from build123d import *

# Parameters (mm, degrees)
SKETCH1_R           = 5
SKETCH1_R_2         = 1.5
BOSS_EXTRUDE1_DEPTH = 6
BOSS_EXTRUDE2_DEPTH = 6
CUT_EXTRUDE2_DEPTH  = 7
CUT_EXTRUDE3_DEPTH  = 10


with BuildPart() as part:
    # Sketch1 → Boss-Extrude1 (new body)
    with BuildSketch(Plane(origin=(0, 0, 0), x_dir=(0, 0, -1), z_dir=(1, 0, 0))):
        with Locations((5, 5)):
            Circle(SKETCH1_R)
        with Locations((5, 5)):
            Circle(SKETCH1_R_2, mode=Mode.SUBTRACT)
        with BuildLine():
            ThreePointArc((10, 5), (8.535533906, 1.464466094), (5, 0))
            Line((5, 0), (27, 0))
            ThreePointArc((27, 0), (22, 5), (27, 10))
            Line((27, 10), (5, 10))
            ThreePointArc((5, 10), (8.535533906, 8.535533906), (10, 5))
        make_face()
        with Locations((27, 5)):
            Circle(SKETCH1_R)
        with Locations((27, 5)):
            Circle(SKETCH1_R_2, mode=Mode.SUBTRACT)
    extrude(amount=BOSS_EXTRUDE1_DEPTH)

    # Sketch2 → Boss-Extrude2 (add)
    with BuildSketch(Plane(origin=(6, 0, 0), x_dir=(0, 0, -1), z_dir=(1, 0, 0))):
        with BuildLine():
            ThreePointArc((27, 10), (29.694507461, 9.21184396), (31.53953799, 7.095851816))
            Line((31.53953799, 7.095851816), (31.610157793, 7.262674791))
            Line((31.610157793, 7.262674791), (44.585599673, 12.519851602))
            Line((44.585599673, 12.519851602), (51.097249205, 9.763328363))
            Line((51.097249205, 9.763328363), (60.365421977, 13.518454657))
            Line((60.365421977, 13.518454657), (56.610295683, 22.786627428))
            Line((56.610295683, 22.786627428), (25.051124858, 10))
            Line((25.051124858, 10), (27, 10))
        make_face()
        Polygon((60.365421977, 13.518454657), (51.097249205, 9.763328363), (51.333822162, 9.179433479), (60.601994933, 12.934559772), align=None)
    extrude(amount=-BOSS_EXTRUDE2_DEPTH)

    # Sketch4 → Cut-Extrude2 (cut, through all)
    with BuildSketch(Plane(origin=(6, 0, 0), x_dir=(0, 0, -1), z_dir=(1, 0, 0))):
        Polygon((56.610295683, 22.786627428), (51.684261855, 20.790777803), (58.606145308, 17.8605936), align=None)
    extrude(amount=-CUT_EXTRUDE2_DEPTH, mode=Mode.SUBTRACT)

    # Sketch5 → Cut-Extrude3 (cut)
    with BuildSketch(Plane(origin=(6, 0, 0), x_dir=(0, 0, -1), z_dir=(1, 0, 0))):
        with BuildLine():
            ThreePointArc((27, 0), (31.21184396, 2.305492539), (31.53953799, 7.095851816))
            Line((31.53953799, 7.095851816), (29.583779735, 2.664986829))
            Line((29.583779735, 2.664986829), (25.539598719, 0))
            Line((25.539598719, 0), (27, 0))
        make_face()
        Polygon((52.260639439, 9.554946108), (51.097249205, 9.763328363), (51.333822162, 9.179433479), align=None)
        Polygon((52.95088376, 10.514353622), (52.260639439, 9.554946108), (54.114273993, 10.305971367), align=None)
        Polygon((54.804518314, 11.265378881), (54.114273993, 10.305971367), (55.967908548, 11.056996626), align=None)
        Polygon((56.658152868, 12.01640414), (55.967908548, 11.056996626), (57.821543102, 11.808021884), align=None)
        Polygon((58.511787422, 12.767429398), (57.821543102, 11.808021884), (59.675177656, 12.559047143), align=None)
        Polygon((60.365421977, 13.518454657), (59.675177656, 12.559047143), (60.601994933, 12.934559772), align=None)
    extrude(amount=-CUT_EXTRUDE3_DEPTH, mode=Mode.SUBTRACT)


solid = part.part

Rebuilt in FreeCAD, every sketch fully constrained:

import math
import FreeCAD as App
import Part
import Sketcher
from FreeCAD import Vector


def add_polygon(sketch, points):
    """Adds a closed chain of lines whose ends are joined by coincident constraints."""
    first, n = sketch.GeometryCount, len(points)
    for a, b in zip(points, points[1:] + points[:1]):
        sketch.addGeometry(Part.LineSegment(App.Vector(*a, 0), App.Vector(*b, 0)), False)
    for i in range(n):
        sketch.addConstraint(Sketcher.Constraint("Coincident", first + i, 2, first + (i + 1) % n, 1))

doc = App.newDocument("Part")
body = doc.addObject("PartDesign::Body", "Body")

# Sketch on YZ plane
sketch1 = body.newObject("Sketcher::SketchObject", "Sketch")
sketch1.AttachmentSupport = (doc.getObject("YZ_Plane"), [""])
sketch1.MapMode = "FlatFace"
sketch1.addGeometry([
    Part.ArcOfCircle(Part.Circle(Vector(5, -5, 0), Vector(0, 0, 1), 5), math.radians(0), math.radians(180)),  # 0
    Part.LineSegment(Vector(0, -5, 0), Vector(0, -27, 0)),  # 1
    Part.ArcOfCircle(Part.Circle(Vector(5, -27, 0), Vector(0, 0, 1), 5), math.radians(180), math.radians(360)),  # 2
    Part.LineSegment(Vector(10, -27, 0), Vector(10, -5, 0)),  # 3
    Part.Circle(Vector(5, -5, 0), Vector(0, 0, 1), 1.5),  # 4
    Part.Circle(Vector(5, -27, 0), Vector(0, 0, 1), 1.5),  # 5
], False)
sketch1.addConstraint([
    Sketcher.Constraint("Tangent", 0, 2, 1, 1),
    Sketcher.Constraint("Tangent", 1, 2, 2, 1),
    Sketcher.Constraint("Tangent", 2, 2, 3, 1),
    Sketcher.Constraint("Tangent", 3, 2, 0, 1),
    Sketcher.Constraint("Vertical", 1),
    Sketcher.Constraint("Vertical", 3),
    Sketcher.Constraint("Coincident", 4, 3, 0, 3),
    Sketcher.Constraint("Coincident", 5, 3, 2, 3),
    Sketcher.Constraint("Equal", 4, 5),
    Sketcher.Constraint("PointOnObject", 0, 2, -2),
    Sketcher.Constraint("Diameter", 4, 3.0),
    Sketcher.Constraint("Radius", 0, 5.0),
    Sketcher.Constraint("DistanceY", 1, 2, 1, 1, 22.0),
    Sketcher.Constraint("DistanceY", 0, 3, -1, 1, 5.0),
])
pad1 = body.newObject("PartDesign::Pad", "Pad")
pad1.Profile = sketch1
pad1.Length = 6

# Sketch on YZ plane
sketch2 = body.newObject("Sketcher::SketchObject", "Sketch001")
sketch2.AttachmentSupport = (doc.getObject("YZ_Plane"), [""])
sketch2.MapMode = "FlatFace"
sketch2.AttachmentOffset = App.Placement(Vector(0, 0, 6), App.Rotation())
sketch2.addGeometry([
    Part.ArcOfCircle(Part.Circle(Vector(5, -27, 0), Vector(0, 0, 1), 5), math.radians(-65), math.radians(0)),  # 0
    Part.LineSegment(Vector(7.1, -31.54, 0), Vector(7.26, -31.61, 0)),  # 1
    Part.LineSegment(Vector(7.26, -31.61, 0), Vector(12.52, -44.59, 0)),  # 2
    Part.LineSegment(Vector(12.52, -44.59, 0), Vector(9.76, -51.1, 0)),  # 3
    Part.LineSegment(Vector(9.76, -51.1, 0), Vector(9.18, -51.33, 0)),  # 4
    Part.LineSegment(Vector(9.18, -51.33, 0), Vector(12.93, -60.6, 0)),  # 5
    Part.LineSegment(Vector(12.93, -60.6, 0), Vector(13.52, -60.37, 0)),  # 6
    Part.LineSegment(Vector(13.52, -60.37, 0), Vector(22.79, -56.61, 0)),  # 7
    Part.LineSegment(Vector(22.79, -56.61, 0), Vector(10, -25.05, 0)),  # 8
    Part.LineSegment(Vector(10, -25.05, 0), Vector(10, -27, 0)),  # 9
], False)
sketch2.addConstraint([
    Sketcher.Constraint("Coincident", 0, 1, 1, 1),
    Sketcher.Constraint("Coincident", 1, 2, 2, 1),
    Sketcher.Constraint("Coincident", 2, 2, 3, 1),
    Sketcher.Constraint("Coincident", 3, 2, 4, 1),
    Sketcher.Constraint("Coincident", 4, 2, 5, 1),
    Sketcher.Constraint("Coincident", 5, 2, 6, 1),
    Sketcher.Constraint("Coincident", 6, 2, 7, 1),
    Sketcher.Constraint("Coincident", 7, 2, 8, 1),
    Sketcher.Constraint("Coincident", 8, 2, 9, 1),
    Sketcher.Constraint("Tangent", 9, 2, 0, 2),
    Sketcher.Constraint("Vertical", 9),
    Sketcher.Constraint("Perpendicular", 1, 3),
    Sketcher.Constraint("Perpendicular", 2, 4),
    Sketcher.Constraint("Perpendicular", 4, 5),
    Sketcher.Constraint("Perpendicular", 5, 6),
    Sketcher.Constraint("Parallel", 6, 7),
    Sketcher.Constraint("Perpendicular", 7, 8),
    Sketcher.Constraint("Equal", 4, 6),
    Sketcher.Constraint("Equal", 5, 7),
    Sketcher.Constraint("Radius", 0, 5.0),
    Sketcher.Constraint("Distance", 2, 14.0),
    Sketcher.Constraint("Distance", 5, 10.0),
    Sketcher.Constraint("DistanceX", -1, 1, 0, 3, 5.0),
    Sketcher.Constraint("DistanceY", 0, 3, -1, 1, 27.0),
    Sketcher.Constraint("Distance", 4, 0.63),
    Sketcher.Constraint("DistanceX", 0, 1, 2, 2, 5.424),
    Sketcher.Constraint("DistanceY", 2, 2, -1, 1, 44.5856),
    Sketcher.Constraint("DistanceY", 6, 2, 4, 2, 9.0316),
    Sketcher.Constraint("DistanceY", 9, 2, 9, 1, 1.948875),
    Sketcher.Constraint("DistanceX", -1, 1, 0, 1, 7.095852),
])
pad2 = body.newObject("PartDesign::Pad", "Pad001")
pad2.Profile = sketch2
pad2.Length = 6
pad2.Reversed = True

# Sketch on YZ plane
sketch3 = body.newObject("Sketcher::SketchObject", "Sketch002")
sketch3.AttachmentSupport = (doc.getObject("YZ_Plane"), [""])
sketch3.MapMode = "FlatFace"
sketch3.AttachmentOffset = App.Placement(Vector(0, 0, 6), App.Rotation())
add_polygon(sketch3, [(23, -57), (21, -52), (18, -59)])  # lines 0-2
sketch3.addConstraint([
    Sketcher.Constraint("Perpendicular", 0, 2),
    Sketcher.Constraint("Equal", 0, 2),
    Sketcher.Constraint("Distance", 0, 5.315),
    Sketcher.Constraint("DistanceY", 0, 2, -1, 1, 51.684262),
    Sketcher.Constraint("DistanceX", 0, 2, 2, 2, 1.99585),
    Sketcher.Constraint("DistanceX", -1, 1, 0, 2, 20.790778),
])
pocket1 = body.newObject("PartDesign::Pocket", "Pocket")
pocket1.Profile = sketch3
pocket1.Type = "ThroughAll"

# Sketch on YZ plane
sketch4 = body.newObject("Sketcher::SketchObject", "Sketch003")
sketch4.AttachmentSupport = (doc.getObject("YZ_Plane"), [""])
sketch4.MapMode = "FlatFace"
sketch4.AttachmentOffset = App.Placement(Vector(0, 0, 6), App.Rotation())
sketch4.addGeometry(Part.ArcOfCircle(Part.Circle(Vector(5, -27, 0), Vector(0, 0, 1), 5), math.radians(180), math.radians(295)), False)  # 0
sketch4.addGeometry(Part.LineSegment(Vector(7.1, -31.5, 0), Vector(2.7, -29.6, 0)), False)  # 1
sketch4.addGeometry(Part.LineSegment(Vector(2.7, -29.6, 0), Vector(0, -25.5, 0)), False)  # 2
sketch4.addGeometry(Part.LineSegment(Vector(0, -25.5, 0), Vector(0, -27, 0)), False)  # 3
add_polygon(sketch4, [(9.6, -52.3), (9.8, -51.1), (9.2, -51.3)])  # lines 4-6
add_polygon(sketch4, [(10.5, -53), (9.6, -52.3), (10.3, -54.1)])  # lines 7-9
add_polygon(sketch4, [(11.3, -54.8), (10.3, -54.1), (11.1, -56)])  # lines 10-12
add_polygon(sketch4, [(12, -56.7), (11.1, -56), (11.8, -57.8)])  # lines 13-15
add_polygon(sketch4, [(12.8, -58.5), (11.8, -57.8), (12.6, -59.7)])  # lines 16-18
add_polygon(sketch4, [(13.5, -60.4), (12.6, -59.7), (12.9, -60.6)])  # lines 19-21
sketch4.addConstraint([
    Sketcher.Constraint("Coincident", 0, 2, 1, 1),
    Sketcher.Constraint("Coincident", 1, 2, 2, 1),
    Sketcher.Constraint("Coincident", 2, 2, 3, 1),
    Sketcher.Constraint("Tangent", 3, 2, 0, 1),
    Sketcher.Constraint("Vertical", 3),
    Sketcher.Constraint("Coincident", 7, 2, 6, 2),
    Sketcher.Constraint("Coincident", 10, 2, 8, 2),
    Sketcher.Constraint("Coincident", 13, 2, 11, 2),
    Sketcher.Constraint("Coincident", 16, 2, 14, 2),
    Sketcher.Constraint("Coincident", 19, 2, 17, 2),
    Sketcher.Constraint("PointOnObject", 2, 2, -2),
    Sketcher.Constraint("Perpendicular", 5, 6),
    Sketcher.Constraint("Parallel", 6, 8),
    Sketcher.Constraint("Parallel", 4, 9),
    Sketcher.Constraint("Parallel", 7, 10),
    Sketcher.Constraint("Parallel", 8, 11),
    Sketcher.Constraint("Parallel", 9, 12),
    Sketcher.Constraint("Parallel", 10, 13),
    Sketcher.Constraint("Parallel", 11, 14),
    Sketcher.Constraint("Parallel", 12, 15),
    Sketcher.Constraint("Parallel", 13, 16),
    Sketcher.Constraint("Parallel", 14, 17),
    Sketcher.Constraint("Parallel", 15, 18),
    Sketcher.Constraint("Parallel", 16, 19),
    Sketcher.Constraint("Parallel", 17, 20),
    Sketcher.Constraint("Perpendicular", 20, 21),
    Sketcher.Constraint("Equal", 1, 2),
    Sketcher.Constraint("Equal", 4, 7),
    Sketcher.Constraint("Equal", 7, 9),
    Sketcher.Constraint("Equal", 9, 10),
    Sketcher.Constraint("Equal", 12, 13),
    Sketcher.Constraint("Equal", 15, 16),
    Sketcher.Constraint("Equal", 18, 19),
    Sketcher.Constraint("Radius", 0, 5.0),
    Sketcher.Constraint("Distance", 6, 1.0),
    Sketcher.Constraint("DistanceY", 0, 3, -1, 1, 27.0),
    Sketcher.Constraint("Distance", 5, 0.63),
    Sketcher.Constraint("DistanceY", 3, 2, 3, 1, 1.460401),
    Sketcher.Constraint("Distance", 1, 4.8433),
    Sketcher.Constraint("DistanceY", 6, 2, 0, 2, 20.721101),
    Sketcher.Constraint("DistanceX", -1, 1, 0, 2, 7.095852),
    Sketcher.Constraint("DistanceX", -1, 1, 4, 2, 9.763328),
    Sketcher.Constraint("DistanceY", 4, 2, -1, 1, 51.097249),
])
pocket2 = body.newObject("PartDesign::Pocket", "Pocket001")
pocket2.Profile = sketch4
pocket2.Length = 10

doc.recompute()
